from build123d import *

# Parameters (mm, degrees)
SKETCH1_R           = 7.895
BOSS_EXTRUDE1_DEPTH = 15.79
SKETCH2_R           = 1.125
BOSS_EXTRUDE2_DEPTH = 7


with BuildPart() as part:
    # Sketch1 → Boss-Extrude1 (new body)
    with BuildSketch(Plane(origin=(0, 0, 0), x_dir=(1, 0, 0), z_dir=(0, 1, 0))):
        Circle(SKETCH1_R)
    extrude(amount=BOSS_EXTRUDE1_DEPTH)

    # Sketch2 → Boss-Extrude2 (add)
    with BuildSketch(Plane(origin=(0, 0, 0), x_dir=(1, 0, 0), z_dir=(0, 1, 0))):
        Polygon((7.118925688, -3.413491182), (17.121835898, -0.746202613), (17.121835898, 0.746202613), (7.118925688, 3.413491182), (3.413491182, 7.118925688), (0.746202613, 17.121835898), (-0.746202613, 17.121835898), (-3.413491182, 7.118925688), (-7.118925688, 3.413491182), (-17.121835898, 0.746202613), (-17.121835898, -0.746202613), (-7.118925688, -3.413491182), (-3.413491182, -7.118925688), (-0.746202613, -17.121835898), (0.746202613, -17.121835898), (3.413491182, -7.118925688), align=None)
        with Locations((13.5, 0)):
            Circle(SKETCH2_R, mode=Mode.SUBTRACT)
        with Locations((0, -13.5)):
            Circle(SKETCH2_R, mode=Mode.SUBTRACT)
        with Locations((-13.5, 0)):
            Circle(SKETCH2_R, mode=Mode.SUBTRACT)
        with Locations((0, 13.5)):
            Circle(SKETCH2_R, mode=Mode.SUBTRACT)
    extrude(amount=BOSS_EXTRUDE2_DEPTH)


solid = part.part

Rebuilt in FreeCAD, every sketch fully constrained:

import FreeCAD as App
import Part
import Sketcher
from FreeCAD import Vector
Q = App.Units.Quantity


def add_polygon(sketch, points):
    """Adds a closed chain of lines whose ends are joined by coincident constraints."""
    first, n = sketch.GeometryCount, len(points)
    for a, b in zip(points, points[1:] + points[:1]):
        sketch.addGeometry(Part.LineSegment(App.Vector(*a, 0), App.Vector(*b, 0)), False)
    for i in range(n):
        sketch.addConstraint(Sketcher.Constraint("Coincident", first + i, 2, first + (i + 1) % n, 1))

doc = App.newDocument("Part")
body = doc.addObject("PartDesign::Body", "Body")

sketch1 = body.newObject("Sketcher::SketchObject", "Sketch")
sketch1.AttachmentSupport = (doc.getObject("XZ_Plane"), [""])
sketch1.MapMode = "FlatFace"
sketch1.addGeometry(Part.Circle(Vector(0, 0, 0), Vector(0, 0, 1), 8), False)
sketch1.addConstraint(Sketcher.Constraint("Coincident", 0, 3, -1, 1))
sketch1.addConstraint(Sketcher.Constraint("Diameter", 0, Q("15.79 mm")))
pad1 = body.newObject("PartDesign::Pad", "Pad")
pad1.Profile = sketch1
pad1.Length = 15.79
pad1.Reversed = True

sketch2 = body.newObject("Sketcher::SketchObject", "Sketch001")
sketch2.AttachmentSupport = (doc.getObject("XZ_Plane"), [""])
sketch2.MapMode = "FlatFace"
add_polygon(sketch2, [(7.1, 3.4), (17.1, 0.7), (17.1, -0.7), (7.1, -3.4), (3.4, -7.1), (0.7, -17.1), (-0.7, -17.1), (-3.4, -7.1), (-7.1, -3.4), (-17.1, -0.7), (-17.1, 0.7), (-7.1, 3.4), (-3.4, 7.1), (-0.7, 17.1), (0.7, 17.1), (3.4, 7.1)])
sketch2.addGeometry(Part.Circle(Vector(0, 13.5, 0), Vector(0, 0, 1), 1.1), False)
sketch2.addGeometry(Part.Circle(Vector(-13.5, 0, 0), Vector(0, 0, 1), 1.1), False)
sketch2.addGeometry(Part.Circle(Vector(13.5, 0, 0), Vector(0, 0, 1), 1.1), False)
sketch2.addGeometry(Part.Circle(Vector(0, -13.5, 0), Vector(0, 0, 1), 1.1), False)
sketch2.addConstraint(Sketcher.Constraint("Vertical", 1))
sketch2.addConstraint(Sketcher.Constraint("Horizontal", 5))
sketch2.addConstraint(Sketcher.Constraint("Vertical", 9))
sketch2.addConstraint(Sketcher.Constraint("Horizontal", 13))
sketch2.addConstraint(Sketcher.Constraint("Equal", 16, 17))
sketch2.addConstraint(Sketcher.Constraint("Equal", 17, 18))
sketch2.addConstraint(Sketcher.Constraint("Equal", 18, 19))
sketch2.addConstraint(Sketcher.Constraint("Symmetric", 17, 3, 18, 3, -1, 1))
sketch2.addConstraint(Sketcher.Constraint("Symmetric", 16, 3, 19, 3, -1, 1))
sketch2.addConstraint(Sketcher.Constraint("Symmetric", 0, 2, 8, 2, -1, 1))
sketch2.addConstraint(Sketcher.Constraint("Symmetric", 2, 2, 10, 2, -1, 1))
sketch2.addConstraint(Sketcher.Constraint("Symmetric", 3, 2, 11, 2, -1, 1))
sketch2.addConstraint(Sketcher.Constraint("Symmetric", 4, 2, 12, 2, -1, 1))
sketch2.addConstraint(Sketcher.Constraint("Symmetric", 6, 2, 14, 2, -1, 1))
sketch2.addConstraint(Sketcher.Constraint("Symmetric", 7, 2, 15, 2, -1, 1))
sketch2.addConstraint(Sketcher.Constraint("Symmetric", 3, 2, 6, 2, -2))
sketch2.addConstraint(Sketcher.Constraint("Symmetric", 2, 2, 7, 2, -2))
sketch2.addConstraint(Sketcher.Constraint("PointOnObject", 16, 3, -2))
sketch2.addConstraint(Sketcher.Constraint("PointOnObject", 17, 3, -1))
sketch2.addConstraint(Sketcher.Constraint("Perpendicular", 0, 4))
sketch2.addConstraint(Sketcher.Constraint("Perpendicular", 2, 6))
sketch2.addConstraint(Sketcher.Constraint("Perpendicular", 3, 7))
sketch2.addConstraint(Sketcher.Constraint("Perpendicular", 6, 10))
sketch2.addConstraint(Sketcher.Constraint("Perpendicular", 10, 14))
sketch2.addConstraint(Sketcher.Constraint("Horizontal", 1, 2, 8, 2))
sketch2.addConstraint(Sketcher.Constraint("Equal", 13, 1))
sketch2.addConstraint(Sketcher.Constraint("Equal", 2, 4))
sketch2.addConstraint(Sketcher.Constraint("Diameter", 16, Q("2.25 mm")))
sketch2.addConstraint(Sketcher.Constraint("DistanceX", 17, 3, 18, 3, Q("27 mm")))
sketch2.addConstraint(Sketcher.Constraint("DistanceY", 19, 3, 16, 3, Q("27 mm")))
sketch2.addConstraint(Sketcher.Constraint("Distance", 0, Q("10.352422 mm")))
sketch2.addConstraint(Sketcher.Constraint("DistanceX", 5, 2, 5, 1, Q("1.492405 mm")))
sketch2.addConstraint(Sketcher.Constraint("DistanceY", 2, 2, -1, 1, Q("3.413491 mm")))
sketch2.addConstraint(Sketcher.Constraint("DistanceY", 3, 2, 0, 2, Q("7.865128 mm")))
pad2 = body.newObject("PartDesign::Pad", "Pad001")
pad2.Profile = sketch2
pad2.Length = 7
pad2.Reversed = True

doc.recompute()
